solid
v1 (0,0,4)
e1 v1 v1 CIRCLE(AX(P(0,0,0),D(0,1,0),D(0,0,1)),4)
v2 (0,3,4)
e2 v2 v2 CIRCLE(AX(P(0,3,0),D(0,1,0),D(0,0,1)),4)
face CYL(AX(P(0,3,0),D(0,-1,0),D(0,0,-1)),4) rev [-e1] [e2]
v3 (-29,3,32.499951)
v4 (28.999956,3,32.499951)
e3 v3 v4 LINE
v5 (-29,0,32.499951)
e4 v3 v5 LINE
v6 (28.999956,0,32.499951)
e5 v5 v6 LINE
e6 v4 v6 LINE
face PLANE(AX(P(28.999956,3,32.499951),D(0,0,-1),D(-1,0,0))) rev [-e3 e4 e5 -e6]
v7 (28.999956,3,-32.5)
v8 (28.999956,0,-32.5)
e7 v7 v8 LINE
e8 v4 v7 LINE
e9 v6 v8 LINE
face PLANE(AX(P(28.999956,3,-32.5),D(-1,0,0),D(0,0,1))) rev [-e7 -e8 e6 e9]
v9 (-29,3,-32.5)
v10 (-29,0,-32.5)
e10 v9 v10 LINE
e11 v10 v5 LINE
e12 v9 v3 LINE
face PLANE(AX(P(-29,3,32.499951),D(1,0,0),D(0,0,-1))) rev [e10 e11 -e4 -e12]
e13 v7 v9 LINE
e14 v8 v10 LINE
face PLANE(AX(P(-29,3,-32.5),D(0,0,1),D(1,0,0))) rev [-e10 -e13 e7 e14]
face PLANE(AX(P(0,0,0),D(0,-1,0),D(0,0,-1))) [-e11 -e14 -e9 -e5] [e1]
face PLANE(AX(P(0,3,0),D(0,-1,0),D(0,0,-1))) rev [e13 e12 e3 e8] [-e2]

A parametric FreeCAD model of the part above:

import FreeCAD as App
import Part
import Sketcher

V = App.Vector

doc = App.newDocument("Part")
params = doc.addObject("Spreadsheet::Sheet", "Params")
for row, (alias, value) in enumerate([
    ("sketch1_diameter", "8 mm"),
    ("pad1_length", "3 mm"),
], start=1):
    params.set(f"A{row}", alias)
    params.set(f"B{row}", "=" + value)
    params.setAlias(f"B{row}", alias)

body = doc.addObject("PartDesign::Body", "Body")

sketch1 = body.newObject("Sketcher::SketchObject", "Sketch")
sketch1.AttachmentSupport = (doc.getObject("XZ_Plane"), [""])
sketch1.MapMode = "FlatFace"
sketch1.addGeometry([
    Part.LineSegment(V(-29, -32.5, 0), V(-29, 32.499951, 0)),
    Part.LineSegment(V(-29, 32.499951, 0), V(28.999956, 32.499951, 0)),
    Part.LineSegment(V(28.999956, 32.499951, 0), V(28.999956, -32.5, 0)),
    Part.LineSegment(V(28.999956, -32.5, 0), V(-29, -32.5, 0)),
    Part.Circle(V(0, 0, 0), V(0, 0, 1), 4),
], False)
sketch1.addConstraint([
    Sketcher.Constraint("Coincident", 0, 2, 1, 1),
    Sketcher.Constraint("Coincident", 1, 2, 2, 1),
    Sketcher.Constraint("Coincident", 2, 2, 3, 1),
    Sketcher.Constraint("Coincident", 3, 2, 0, 1),
    Sketcher.Constraint("Vertical", 0),
    Sketcher.Constraint("Horizontal", 1),
    Sketcher.Constraint("Vertical", 2),
    Sketcher.Constraint("Horizontal", 3),
    Sketcher.Constraint("Coincident", 4, 3, -1, 1),
    Sketcher.Constraint("Diameter", 4, 8.0),
    Sketcher.Constraint("DistanceX", 0, 2, -1, 1, 29.0),
    Sketcher.Constraint("DistanceY", 2, 2, -1, 1, 32.5),
    Sketcher.Constraint("DistanceY", 0, 1, 0, 2, 64.999951),
    Sketcher.Constraint("DistanceX", 1, 1, 1, 2, 57.999956),
])
sketch1.setExpression("Constraints[9]", "Params.sketch1_diameter")
pad1 = body.newObject("PartDesign::Pad", "Pad")
pad1.Profile = sketch1
pad1.setExpression("Length", "Params.pad1_length")
pad1.Reversed = True

doc.recompute()
